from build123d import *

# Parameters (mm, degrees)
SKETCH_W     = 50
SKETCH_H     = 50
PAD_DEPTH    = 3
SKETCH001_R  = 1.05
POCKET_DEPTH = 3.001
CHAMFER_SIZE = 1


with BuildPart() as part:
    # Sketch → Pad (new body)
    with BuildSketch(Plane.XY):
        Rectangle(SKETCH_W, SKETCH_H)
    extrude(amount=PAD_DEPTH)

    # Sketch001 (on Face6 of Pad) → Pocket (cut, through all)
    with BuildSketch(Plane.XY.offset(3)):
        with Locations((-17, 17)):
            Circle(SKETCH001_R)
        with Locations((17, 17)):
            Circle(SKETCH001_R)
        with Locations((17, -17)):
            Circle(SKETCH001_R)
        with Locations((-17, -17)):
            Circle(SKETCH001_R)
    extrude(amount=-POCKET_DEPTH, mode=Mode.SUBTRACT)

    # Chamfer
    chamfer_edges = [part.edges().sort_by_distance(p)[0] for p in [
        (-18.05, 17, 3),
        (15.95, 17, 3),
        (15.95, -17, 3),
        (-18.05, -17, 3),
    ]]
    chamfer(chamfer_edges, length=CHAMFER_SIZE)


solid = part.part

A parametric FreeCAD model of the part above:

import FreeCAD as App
import Part
import Sketcher
from FreeCAD import Vector


def edges_at(feature, points):
    """Names of the edges that pass closest to the given points."""
    edges = feature.Shape.Edges
    near = lambda p: min(range(len(edges)), key=lambda i: edges[i].distToShape(Part.Vertex(*p))[0])
    return sorted({f"Edge{near(p) + 1}" for p in points})


def add_polygon(sketch, points):
    """Adds a closed chain of lines whose ends are joined by coincident constraints."""
    first, n = sketch.GeometryCount, len(points)
    for a, b in zip(points, points[1:] + points[:1]):
        sketch.addGeometry(Part.LineSegment(App.Vector(*a, 0), App.Vector(*b, 0)), False)
    for i in range(n):
        sketch.addConstraint(Sketcher.Constraint("Coincident", first + i, 2, first + (i + 1) % n, 1))

doc = App.newDocument("Part")
params = doc.addObject("Spreadsheet::Sheet", "Params")
for row, (alias, value) in enumerate([
    ("sketch1_width", "50 mm"),
    ("pad1_length", "3 mm"),
    ("sketch2_diameter", "2.1 mm"),
    ("chamfer_size", "1 mm"),
], start=1):
    params.set(f"A{row}", alias)
    params.set(f"B{row}", "=" + value)
    params.setAlias(f"B{row}", alias)

body = doc.addObject("PartDesign::Body", "Body")

# Sketch on XY plane
sketch1 = body.newObject("Sketcher::SketchObject", "Sketch")
sketch1.AttachmentSupport = (doc.getObject("XY_Plane"), [""])
sketch1.MapMode = "FlatFace"
add_polygon(sketch1, [(-25, 25), (-25, -25), (25, -25), (25, 25)])  # lines 0-3
sketch1.addConstraint([
    Sketcher.Constraint("Vertical", 0),
    Sketcher.Constraint("Horizontal", 1),
    Sketcher.Constraint("Vertical", 2),
    Sketcher.Constraint("Horizontal", 3),
    Sketcher.Constraint("Symmetric", 0, 2, 2, 2, -1, 1),
    Sketcher.Constraint("Equal", 3, 0),
    Sketcher.Constraint("DistanceX", 1, 1, 1, 2, 50.0),
])
sketch1.setExpression("Constraints[10]", "Params.sketch1_width")
pad1 = body.newObject("PartDesign::Pad", "Pad")
pad1.Profile = sketch1
pad1.setExpression("Length", "Params.pad1_length")

# Sketch on XY plane
sketch2 = body.newObject("Sketcher::SketchObject", "Sketch001")
sketch2.AttachmentSupport = (doc.getObject("XY_Plane"), [""])
sketch2.MapMode = "FlatFace"
sketch2.AttachmentOffset = App.Placement(Vector(0, 0, 3), App.Rotation())
sketch2.addGeometry([
    Part.Circle(Vector(-17, 17, 0), Vector(0, 0, 1), 1.05),
    Part.Circle(Vector(17, 17, 0), Vector(0, 0, 1), 1.05),
    Part.Circle(Vector(17, -17, 0), Vector(0, 0, 1), 1.05),
    Part.Circle(Vector(-17, -17, 0), Vector(0, 0, 1), 1.05),
], False)
sketch2.addConstraint([
    Sketcher.Constraint("Equal", 0, 1),
    Sketcher.Constraint("Equal", 1, 2),
    Sketcher.Constraint("Equal", 2, 3),
    Sketcher.Constraint("Symmetric", 0, 3, 2, 3, -1, 1),
    Sketcher.Constraint("Symmetric", 1, 3, 3, 3, -1, 1),
    Sketcher.Constraint("Symmetric", 0, 3, 1, 3, -2),
    Sketcher.Constraint("Diameter", 0, 2.1),
    Sketcher.Constraint("DistanceX", 0, 3, -1, 1, 17.0),
    Sketcher.Constraint("DistanceY", -1, 1, 0, 3, 17.0),
])
sketch2.setExpression("Constraints[6]", "Params.sketch2_diameter")
pocket1 = body.newObject("PartDesign::Pocket", "Pocket")
pocket1.Profile = sketch2
pocket1.Type = "ThroughAll"
doc.recompute()

chamfer = body.newObject("PartDesign::Chamfer", "Chamfer")
chamfer.Base = (pocket1, edges_at(pocket1, [
    (-18.05, 17, 3),
    (15.95, 17, 3),
    (15.95, -17, 3),
    (-18.05, -17, 3),
]))
chamfer.setExpression("Size", "Params.chamfer_size")

doc.recompute()
